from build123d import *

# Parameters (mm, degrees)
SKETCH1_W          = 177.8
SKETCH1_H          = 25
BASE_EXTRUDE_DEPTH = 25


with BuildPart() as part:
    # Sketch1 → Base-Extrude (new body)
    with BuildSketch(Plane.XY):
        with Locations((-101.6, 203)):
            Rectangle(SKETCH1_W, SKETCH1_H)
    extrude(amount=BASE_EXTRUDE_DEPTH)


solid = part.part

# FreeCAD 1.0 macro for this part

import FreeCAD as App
import Part
import Sketcher

V = App.Vector


def add_polygon(sketch, points):
    """Adds a closed chain of lines whose ends are joined by coincident constraints."""
    first, n = sketch.GeometryCount, len(points)
    for a, b in zip(points, points[1:] + points[:1]):
        sketch.addGeometry(Part.LineSegment(App.Vector(*a, 0), App.Vector(*b, 0)), False)
    for i in range(n):
        sketch.addConstraint(Sketcher.Constraint("Coincident", first + i, 2, first + (i + 1) % n, 1))

doc = App.newDocument("Part")
body = doc.addObject("PartDesign::Body", "Body")

# Sketch on XY plane
sketch1 = body.newObject("Sketcher::SketchObject", "Sketch")
sketch1.AttachmentSupport = (doc.getObject("XY_Plane"), [""])
sketch1.MapMode = "FlatFace"
add_polygon(sketch1, [(-190, 216), (-190, 190), (-13, 190), (-13, 216)])  # lines 0-3
sketch1.addConstraint([
    Sketcher.Constraint("Vertical", 0),
    Sketcher.Constraint("Horizontal", 1),
    Sketcher.Constraint("Vertical", 2),
    Sketcher.Constraint("Horizontal", 3),
    Sketcher.Constraint("DistanceY", 0, 2, 0, 1, 25.0),
    Sketcher.Constraint("DistanceX", 1, 1, 1, 2, 177.8),
    Sketcher.Constraint("DistanceX", 0, 2, -1, 1, 190.5),
    Sketcher.Constraint("DistanceY", -1, 1, 0, 2, 190.5),
])
pad1 = body.newObject("PartDesign::Pad", "Pad")
pad1.Profile = sketch1
pad1.Length = 25

doc.recompute()
